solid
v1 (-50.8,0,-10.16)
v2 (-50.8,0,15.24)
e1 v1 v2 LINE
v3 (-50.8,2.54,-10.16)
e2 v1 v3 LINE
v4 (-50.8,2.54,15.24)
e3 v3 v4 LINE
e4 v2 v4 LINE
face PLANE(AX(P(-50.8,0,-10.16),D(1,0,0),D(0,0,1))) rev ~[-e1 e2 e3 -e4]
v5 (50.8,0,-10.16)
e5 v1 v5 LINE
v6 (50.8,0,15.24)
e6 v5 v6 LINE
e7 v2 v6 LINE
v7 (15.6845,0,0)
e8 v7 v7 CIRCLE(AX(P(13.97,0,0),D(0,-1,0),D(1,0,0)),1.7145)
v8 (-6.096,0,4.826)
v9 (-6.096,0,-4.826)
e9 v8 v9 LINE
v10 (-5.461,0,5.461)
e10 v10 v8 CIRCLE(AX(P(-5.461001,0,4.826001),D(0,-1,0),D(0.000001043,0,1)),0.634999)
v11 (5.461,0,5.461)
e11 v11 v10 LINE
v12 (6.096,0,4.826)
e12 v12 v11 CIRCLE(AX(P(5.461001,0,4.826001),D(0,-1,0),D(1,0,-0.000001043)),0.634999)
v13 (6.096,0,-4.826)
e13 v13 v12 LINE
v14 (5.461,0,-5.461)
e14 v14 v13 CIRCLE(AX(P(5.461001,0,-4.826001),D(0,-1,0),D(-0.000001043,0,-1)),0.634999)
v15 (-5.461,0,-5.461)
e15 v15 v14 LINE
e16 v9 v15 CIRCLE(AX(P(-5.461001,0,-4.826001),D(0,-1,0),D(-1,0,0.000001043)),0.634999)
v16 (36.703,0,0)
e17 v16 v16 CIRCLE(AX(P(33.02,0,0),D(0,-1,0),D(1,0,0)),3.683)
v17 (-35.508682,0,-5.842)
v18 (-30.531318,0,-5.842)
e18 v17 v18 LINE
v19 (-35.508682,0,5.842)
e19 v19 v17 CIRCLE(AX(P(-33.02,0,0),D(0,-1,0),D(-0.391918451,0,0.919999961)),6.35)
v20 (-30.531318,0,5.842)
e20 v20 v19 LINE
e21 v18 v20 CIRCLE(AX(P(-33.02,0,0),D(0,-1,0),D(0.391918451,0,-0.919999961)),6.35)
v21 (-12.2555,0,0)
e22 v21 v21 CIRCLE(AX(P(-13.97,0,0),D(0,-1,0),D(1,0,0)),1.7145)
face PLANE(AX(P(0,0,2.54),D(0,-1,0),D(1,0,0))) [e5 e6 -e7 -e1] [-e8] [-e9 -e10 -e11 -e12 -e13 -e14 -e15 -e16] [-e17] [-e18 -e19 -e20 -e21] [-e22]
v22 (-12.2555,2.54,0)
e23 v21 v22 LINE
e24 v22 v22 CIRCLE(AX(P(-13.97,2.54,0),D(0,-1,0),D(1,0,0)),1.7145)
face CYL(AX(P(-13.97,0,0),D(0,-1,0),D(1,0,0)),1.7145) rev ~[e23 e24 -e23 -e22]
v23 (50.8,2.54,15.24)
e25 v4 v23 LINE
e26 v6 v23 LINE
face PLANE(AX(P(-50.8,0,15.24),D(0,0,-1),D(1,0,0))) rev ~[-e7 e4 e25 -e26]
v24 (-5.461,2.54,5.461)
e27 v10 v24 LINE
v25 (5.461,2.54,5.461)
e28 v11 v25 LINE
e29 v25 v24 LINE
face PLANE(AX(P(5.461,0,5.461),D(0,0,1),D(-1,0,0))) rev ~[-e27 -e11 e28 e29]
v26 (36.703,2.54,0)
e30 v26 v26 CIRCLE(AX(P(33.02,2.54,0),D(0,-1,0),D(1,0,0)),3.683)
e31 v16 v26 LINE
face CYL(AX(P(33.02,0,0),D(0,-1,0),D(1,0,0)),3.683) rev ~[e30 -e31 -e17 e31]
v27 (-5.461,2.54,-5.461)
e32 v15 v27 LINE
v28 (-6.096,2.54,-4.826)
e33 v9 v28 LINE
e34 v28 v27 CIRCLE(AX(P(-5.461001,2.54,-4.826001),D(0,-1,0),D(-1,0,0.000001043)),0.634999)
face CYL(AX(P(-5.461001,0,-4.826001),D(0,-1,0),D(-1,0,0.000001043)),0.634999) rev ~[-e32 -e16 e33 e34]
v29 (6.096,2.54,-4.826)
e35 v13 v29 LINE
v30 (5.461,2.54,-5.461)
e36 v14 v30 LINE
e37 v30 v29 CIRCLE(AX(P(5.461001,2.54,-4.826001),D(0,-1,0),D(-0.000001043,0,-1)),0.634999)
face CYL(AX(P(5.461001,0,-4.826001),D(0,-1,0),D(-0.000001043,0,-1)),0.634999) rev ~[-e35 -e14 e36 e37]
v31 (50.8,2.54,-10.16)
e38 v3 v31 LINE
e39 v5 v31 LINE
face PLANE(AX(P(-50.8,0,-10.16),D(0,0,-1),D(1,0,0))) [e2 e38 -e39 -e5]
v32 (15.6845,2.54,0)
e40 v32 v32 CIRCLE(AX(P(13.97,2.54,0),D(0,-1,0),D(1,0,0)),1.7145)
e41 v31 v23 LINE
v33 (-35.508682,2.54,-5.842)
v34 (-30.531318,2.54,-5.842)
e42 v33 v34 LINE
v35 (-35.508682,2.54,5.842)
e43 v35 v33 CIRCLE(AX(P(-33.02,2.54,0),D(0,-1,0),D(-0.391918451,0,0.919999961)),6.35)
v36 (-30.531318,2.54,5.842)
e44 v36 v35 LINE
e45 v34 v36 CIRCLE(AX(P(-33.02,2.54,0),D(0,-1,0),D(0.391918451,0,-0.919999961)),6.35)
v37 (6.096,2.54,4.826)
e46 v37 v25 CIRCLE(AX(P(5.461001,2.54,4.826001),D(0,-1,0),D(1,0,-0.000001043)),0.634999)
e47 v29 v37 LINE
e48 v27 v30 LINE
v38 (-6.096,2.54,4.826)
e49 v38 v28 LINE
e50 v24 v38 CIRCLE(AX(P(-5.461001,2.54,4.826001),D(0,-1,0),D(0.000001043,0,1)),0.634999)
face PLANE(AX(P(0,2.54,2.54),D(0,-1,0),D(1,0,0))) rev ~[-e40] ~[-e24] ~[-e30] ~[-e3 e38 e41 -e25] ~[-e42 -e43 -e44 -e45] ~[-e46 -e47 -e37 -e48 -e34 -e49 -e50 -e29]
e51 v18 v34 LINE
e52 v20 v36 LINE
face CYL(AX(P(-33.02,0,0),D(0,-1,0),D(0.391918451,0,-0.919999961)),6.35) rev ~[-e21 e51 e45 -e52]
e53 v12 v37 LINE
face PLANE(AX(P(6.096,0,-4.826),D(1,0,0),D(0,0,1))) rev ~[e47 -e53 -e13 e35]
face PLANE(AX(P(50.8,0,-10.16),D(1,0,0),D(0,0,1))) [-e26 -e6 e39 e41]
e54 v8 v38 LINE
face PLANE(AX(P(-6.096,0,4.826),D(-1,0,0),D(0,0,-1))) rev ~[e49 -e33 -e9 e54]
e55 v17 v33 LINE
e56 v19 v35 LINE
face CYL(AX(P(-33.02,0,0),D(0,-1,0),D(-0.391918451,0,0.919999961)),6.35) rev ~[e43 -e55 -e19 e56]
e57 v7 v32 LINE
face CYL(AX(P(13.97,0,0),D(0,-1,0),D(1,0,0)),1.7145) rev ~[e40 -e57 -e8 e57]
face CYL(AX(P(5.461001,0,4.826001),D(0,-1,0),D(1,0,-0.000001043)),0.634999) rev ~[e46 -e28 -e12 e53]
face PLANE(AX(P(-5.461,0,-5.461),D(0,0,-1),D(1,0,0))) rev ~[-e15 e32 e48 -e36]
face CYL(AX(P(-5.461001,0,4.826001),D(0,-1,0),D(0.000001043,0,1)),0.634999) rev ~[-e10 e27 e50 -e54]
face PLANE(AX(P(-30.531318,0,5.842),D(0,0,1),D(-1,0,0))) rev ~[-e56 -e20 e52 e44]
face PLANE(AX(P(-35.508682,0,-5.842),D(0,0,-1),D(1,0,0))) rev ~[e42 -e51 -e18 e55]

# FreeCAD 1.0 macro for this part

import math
import FreeCAD as App
import Part
import Sketcher
from FreeCAD import Vector
Q = App.Units.Quantity

doc = App.newDocument("Part")
body = doc.addObject("PartDesign::Body", "Body")

sketch1 = body.newObject("Sketcher::SketchObject", "Sketch")
sketch1.AttachmentSupport = (doc.getObject("XZ_Plane"), [""])
sketch1.MapMode = "FlatFace"
sketch1.addGeometry([
    Part.LineSegment(Vector(-50.8, 15.24, 0), Vector(-50.8, -10.16, 0)),
    Part.LineSegment(Vector(-50.8, -10.16, 0), Vector(50.8, -10.16, 0)),
    Part.LineSegment(Vector(50.8, -10.16, 0), Vector(50.8, 15.24, 0)),
    Part.LineSegment(Vector(50.8, 15.24, 0), Vector(-50.8, 15.24, 0)),
], False)
sketch1.addConstraint([
    Sketcher.Constraint("Coincident", 0, 2, 1, 1),
    Sketcher.Constraint("Coincident", 1, 2, 2, 1),
    Sketcher.Constraint("Coincident", 2, 2, 3, 1),
    Sketcher.Constraint("Coincident", 3, 2, 0, 1),
    Sketcher.Constraint("Vertical", 0),
    Sketcher.Constraint("Horizontal", 1),
    Sketcher.Constraint("Vertical", 2),
    Sketcher.Constraint("Horizontal", 3),
    Sketcher.Constraint("DistanceX", 1, 1, 1, 2, Q("4 in")),
    Sketcher.Constraint("DistanceY", 0, 2, 0, 1, Q("1 in")),
    Sketcher.Constraint("DistanceX", 0, 2, -1, 1, Q("2 in")),
    Sketcher.Constraint("DistanceY", 0, 2, -1, 1, Q("0.4 in")),
])
pad1 = body.newObject("PartDesign::Pad", "Pad")
pad1.Profile = sketch1
pad1.Length = Q("0.1 in")
pad1.Reversed = True

sketch2 = body.newObject("Sketcher::SketchObject", "Sketch001")
sketch2.AttachmentSupport = (doc.getObject("XZ_Plane"), [""])
sketch2.MapMode = "FlatFace"
sketch2.addGeometry([
    Part.LineSegment(Vector(-30.531318, 5.842, 0), Vector(-35.508682, 5.842, 0)),
    Part.ArcOfCircle(Part.Circle(Vector(-33.02, 0, 0), Vector(0, 0, 1), 6.35), math.radians(113.073924), math.radians(246.926076)),
    Part.LineSegment(Vector(-35.508682, -5.842, 0), Vector(-30.531318, -5.842, 0)),
    Part.ArcOfCircle(Part.Circle(Vector(-33.02, 0, 0), Vector(0, 0, 1), 6.35), math.radians(-66.926076), math.radians(66.926076)),
    Part.Circle(Vector(-13.97, 0, 0), Vector(0, 0, 1), 1.7145),
    Part.Circle(Vector(13.97, 0, 0), Vector(0, 0, 1), 1.7145),
    Part.Circle(Vector(33.02, 0, 0), Vector(0, 0, 1), 3.683),
    Part.ArcOfCircle(Part.Circle(Vector(5.461001, 4.826001, 0), Vector(0, 0, 1), 0.634999), math.radians(-0.00006), math.radians(90.00006)),
    Part.LineSegment(Vector(5.461, 5.461, 0), Vector(-5.461, 5.461, 0)),
    Part.ArcOfCircle(Part.Circle(Vector(-5.461001, 4.826001, 0), Vector(0, 0, 1), 0.634999), math.radians(89.99994), math.radians(180.00006)),
    Part.LineSegment(Vector(-6.096, 4.826, 0), Vector(-6.096, -4.826, 0)),
    Part.ArcOfCircle(Part.Circle(Vector(-5.461001, -4.826001, 0), Vector(0, 0, 1), 0.634999), math.radians(179.99994), math.radians(270.00006)),
    Part.LineSegment(Vector(-5.461, -5.461, 0), Vector(5.461, -5.461, 0)),
    Part.ArcOfCircle(Part.Circle(Vector(5.461001, -4.826001, 0), Vector(0, 0, 1), 0.634999), math.radians(-90.00006), math.radians(0.00006)),
    Part.LineSegment(Vector(6.096, -4.826, 0), Vector(6.096, 4.826, 0)),
], False)
sketch2.addConstraint([
    Sketcher.Constraint("Coincident", 0, 2, 1, 1),
    Sketcher.Constraint("Coincident", 1, 2, 2, 1),
    Sketcher.Constraint("Coincident", 2, 2, 3, 1),
    Sketcher.Constraint("Coincident", 3, 2, 0, 1),
    Sketcher.Constraint("Tangent", 7, 2, 8, 1),
    Sketcher.Constraint("Tangent", 8, 2, 9, 1),
    Sketcher.Constraint("Tangent", 9, 2, 10, 1),
    Sketcher.Constraint("Tangent", 10, 2, 11, 1),
    Sketcher.Constraint("Tangent", 11, 2, 12, 1),
    Sketcher.Constraint("Tangent", 12, 2, 13, 1),
    Sketcher.Constraint("Tangent", 13, 2, 14, 1),
    Sketcher.Constraint("Tangent", 14, 2, 7, 1),
    Sketcher.Constraint("Horizontal", 0),
    Sketcher.Constraint("Horizontal", 2),
    Sketcher.Constraint("Horizontal", 8),
    Sketcher.Constraint("Vertical", 10),
    Sketcher.Constraint("Horizontal", 12),
    Sketcher.Constraint("Vertical", 14),
    Sketcher.Constraint("Coincident", 3, 3, 1, 3),
    Sketcher.Constraint("Equal", 1, 3),
    Sketcher.Constraint("Equal", 4, 5),
    Sketcher.Constraint("Equal", 7, 9),
    Sketcher.Constraint("Equal", 9, 11),
    Sketcher.Constraint("Equal", 11, 13),
    Sketcher.Constraint("Symmetric", 4, 3, 5, 3, -1, 1),
    Sketcher.Constraint("Symmetric", 1, 3, 6, 3, -1, 1),
    Sketcher.Constraint("Symmetric", 7, 3, 11, 3, -1, 1),
    Sketcher.Constraint("Symmetric", 0, 2, 1, 2, -1),
    Sketcher.Constraint("PointOnObject", 4, 3, -1),
    Sketcher.Constraint("Diameter", 6, Q("0.29 in")),
    Sketcher.Constraint("Radius", 1, Q("0.25 in")),
    Sketcher.Constraint("Diameter", 4, Q("0.135 in")),
    Sketcher.Constraint("Radius", 7, Q("0.025 in")),
    Sketcher.Constraint("DistanceX", 8, 2, 8, 1, Q("0.43 in")),
    Sketcher.Constraint("DistanceY", 10, 2, 10, 1, Q("0.38 in")),
    Sketcher.Constraint("DistanceX", 1, 3, -1, 1, Q("1.3 in")),
    Sketcher.Constraint("DistanceX", 4, 3, 5, 3, Q("1.1 in")),
    Sketcher.Constraint("DistanceY", -1, 1, 0, 2, Q("0.23 in")),
])
pocket1 = body.newObject("PartDesign::Pocket", "Pocket")
pocket1.Profile = sketch2
pocket1.Type = "ThroughAll"

doc.recompute()
